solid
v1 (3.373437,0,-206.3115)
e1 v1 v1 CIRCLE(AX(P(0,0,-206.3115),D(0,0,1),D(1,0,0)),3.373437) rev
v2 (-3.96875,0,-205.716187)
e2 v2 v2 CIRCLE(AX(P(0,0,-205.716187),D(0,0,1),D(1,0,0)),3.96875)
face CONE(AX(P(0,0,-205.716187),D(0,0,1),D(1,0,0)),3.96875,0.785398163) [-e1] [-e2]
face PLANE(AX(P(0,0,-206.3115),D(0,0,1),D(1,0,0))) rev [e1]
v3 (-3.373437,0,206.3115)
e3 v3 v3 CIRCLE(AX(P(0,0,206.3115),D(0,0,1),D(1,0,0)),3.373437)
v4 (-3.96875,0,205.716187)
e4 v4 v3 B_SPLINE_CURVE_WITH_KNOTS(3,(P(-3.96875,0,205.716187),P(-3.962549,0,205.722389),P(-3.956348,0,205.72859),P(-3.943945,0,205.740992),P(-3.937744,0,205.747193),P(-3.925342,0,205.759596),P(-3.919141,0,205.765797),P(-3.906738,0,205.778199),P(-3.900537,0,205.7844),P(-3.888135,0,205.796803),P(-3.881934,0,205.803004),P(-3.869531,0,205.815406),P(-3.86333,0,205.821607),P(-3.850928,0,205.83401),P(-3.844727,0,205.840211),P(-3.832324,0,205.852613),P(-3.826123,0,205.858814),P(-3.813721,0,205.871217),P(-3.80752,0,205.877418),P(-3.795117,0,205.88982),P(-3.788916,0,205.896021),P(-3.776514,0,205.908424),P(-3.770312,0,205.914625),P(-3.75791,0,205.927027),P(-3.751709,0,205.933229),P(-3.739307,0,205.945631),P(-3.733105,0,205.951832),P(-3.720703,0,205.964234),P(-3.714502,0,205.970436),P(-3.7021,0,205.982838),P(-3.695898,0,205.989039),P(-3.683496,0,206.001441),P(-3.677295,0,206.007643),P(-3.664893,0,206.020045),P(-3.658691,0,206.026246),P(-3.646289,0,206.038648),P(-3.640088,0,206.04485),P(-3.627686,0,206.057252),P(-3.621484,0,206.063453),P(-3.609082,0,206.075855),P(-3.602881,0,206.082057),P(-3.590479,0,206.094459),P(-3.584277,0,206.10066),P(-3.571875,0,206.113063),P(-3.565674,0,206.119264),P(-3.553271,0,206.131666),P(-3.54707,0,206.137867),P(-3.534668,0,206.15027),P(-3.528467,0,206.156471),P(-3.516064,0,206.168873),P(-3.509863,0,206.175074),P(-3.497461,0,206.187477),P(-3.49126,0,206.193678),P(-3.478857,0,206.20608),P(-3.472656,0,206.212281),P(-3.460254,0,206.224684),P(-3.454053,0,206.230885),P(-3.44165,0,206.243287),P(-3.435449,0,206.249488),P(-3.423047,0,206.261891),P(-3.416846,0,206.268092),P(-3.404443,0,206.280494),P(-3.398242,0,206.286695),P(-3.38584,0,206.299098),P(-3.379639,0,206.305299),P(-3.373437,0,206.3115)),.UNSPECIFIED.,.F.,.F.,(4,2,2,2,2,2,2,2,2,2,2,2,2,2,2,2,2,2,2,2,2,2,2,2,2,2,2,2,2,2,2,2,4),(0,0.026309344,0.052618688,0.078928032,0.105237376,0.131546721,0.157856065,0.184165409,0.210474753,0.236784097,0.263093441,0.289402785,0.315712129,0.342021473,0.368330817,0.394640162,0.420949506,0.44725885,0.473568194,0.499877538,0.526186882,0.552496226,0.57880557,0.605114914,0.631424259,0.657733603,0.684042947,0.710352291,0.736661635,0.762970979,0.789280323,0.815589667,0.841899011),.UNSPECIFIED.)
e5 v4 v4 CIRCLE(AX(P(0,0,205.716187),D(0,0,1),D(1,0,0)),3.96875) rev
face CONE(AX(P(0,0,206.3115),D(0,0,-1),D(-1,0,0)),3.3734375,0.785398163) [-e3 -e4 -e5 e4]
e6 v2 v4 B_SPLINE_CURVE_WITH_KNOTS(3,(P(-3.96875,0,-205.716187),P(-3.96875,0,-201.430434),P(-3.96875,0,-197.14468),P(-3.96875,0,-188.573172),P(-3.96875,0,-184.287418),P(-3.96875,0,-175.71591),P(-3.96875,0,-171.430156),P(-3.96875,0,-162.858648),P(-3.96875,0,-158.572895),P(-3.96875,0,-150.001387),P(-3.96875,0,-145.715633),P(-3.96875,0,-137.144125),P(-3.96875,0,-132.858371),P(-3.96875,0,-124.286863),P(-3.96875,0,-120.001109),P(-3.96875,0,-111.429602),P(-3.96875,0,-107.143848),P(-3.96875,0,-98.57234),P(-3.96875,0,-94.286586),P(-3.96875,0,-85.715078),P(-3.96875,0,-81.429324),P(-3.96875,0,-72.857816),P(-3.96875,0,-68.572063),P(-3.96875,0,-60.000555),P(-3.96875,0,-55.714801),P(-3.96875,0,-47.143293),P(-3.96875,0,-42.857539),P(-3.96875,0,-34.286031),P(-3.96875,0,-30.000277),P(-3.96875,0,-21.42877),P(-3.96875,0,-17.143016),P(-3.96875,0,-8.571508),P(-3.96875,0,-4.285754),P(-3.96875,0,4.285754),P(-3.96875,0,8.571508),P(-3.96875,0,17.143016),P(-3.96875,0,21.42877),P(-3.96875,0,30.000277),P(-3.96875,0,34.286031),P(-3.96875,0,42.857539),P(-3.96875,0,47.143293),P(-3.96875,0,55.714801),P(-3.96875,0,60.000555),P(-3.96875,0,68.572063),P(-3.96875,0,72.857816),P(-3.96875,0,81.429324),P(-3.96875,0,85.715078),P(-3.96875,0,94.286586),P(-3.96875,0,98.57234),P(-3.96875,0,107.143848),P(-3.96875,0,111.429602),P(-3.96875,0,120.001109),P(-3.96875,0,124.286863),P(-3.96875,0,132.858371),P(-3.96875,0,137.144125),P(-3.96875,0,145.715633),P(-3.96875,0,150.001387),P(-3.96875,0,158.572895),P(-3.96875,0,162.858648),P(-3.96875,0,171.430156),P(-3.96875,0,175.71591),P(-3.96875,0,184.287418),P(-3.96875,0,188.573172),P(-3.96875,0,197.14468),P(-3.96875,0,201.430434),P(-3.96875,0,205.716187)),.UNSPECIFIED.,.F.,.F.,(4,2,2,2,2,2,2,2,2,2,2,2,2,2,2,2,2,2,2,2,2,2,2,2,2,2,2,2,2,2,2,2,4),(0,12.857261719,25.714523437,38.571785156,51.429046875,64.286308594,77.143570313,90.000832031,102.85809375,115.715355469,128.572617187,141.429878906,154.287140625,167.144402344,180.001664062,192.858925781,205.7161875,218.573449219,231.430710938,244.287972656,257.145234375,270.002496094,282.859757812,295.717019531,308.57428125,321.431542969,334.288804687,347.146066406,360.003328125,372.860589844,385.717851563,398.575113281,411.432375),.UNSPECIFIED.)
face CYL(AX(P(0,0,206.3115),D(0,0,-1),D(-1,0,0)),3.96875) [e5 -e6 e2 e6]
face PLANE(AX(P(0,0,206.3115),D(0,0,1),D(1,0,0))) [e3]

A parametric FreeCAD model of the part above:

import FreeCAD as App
import Part
import Sketcher
from FreeCAD import Vector
Q = App.Units.Quantity


def edges_at(feature, points):
    """Names of the edges that pass closest to the given points."""
    edges = feature.Shape.Edges
    near = lambda p: min(range(len(edges)), key=lambda i: edges[i].distToShape(Part.Vertex(*p))[0])
    return sorted({f"Edge{near(p) + 1}" for p in points})

doc = App.newDocument("Part")
body = doc.addObject("PartDesign::Body", "Body")

sketch1 = body.newObject("Sketcher::SketchObject", "Sketch")
sketch1.AttachmentSupport = (doc.getObject("XY_Plane"), [""])
sketch1.MapMode = "FlatFace"
sketch1.addGeometry(Part.Circle(Vector(0, 0, 0), Vector(0, 0, 1), 3.96875), False)
sketch1.addConstraint(Sketcher.Constraint("Coincident", 0, 3, -1, 1))
sketch1.addConstraint(Sketcher.Constraint("Diameter", 0, Q("0.3125 in")))
pad1 = body.newObject("PartDesign::Pad", "Pad")
pad1.Profile = sketch1
pad1.Type = "TwoLengths"
pad1.Length = Q("8.1225 in")
pad1.Length2 = Q("8.1225 in")
doc.recompute()

chamfer = body.newObject("PartDesign::Chamfer", "Chamfer")
chamfer.Base = (pad1, edges_at(pad1, [(-3.969, 0, -206.311), (-3.969, 0, 206.311)]))
chamfer.Size = 0.595313

doc.recompute()
